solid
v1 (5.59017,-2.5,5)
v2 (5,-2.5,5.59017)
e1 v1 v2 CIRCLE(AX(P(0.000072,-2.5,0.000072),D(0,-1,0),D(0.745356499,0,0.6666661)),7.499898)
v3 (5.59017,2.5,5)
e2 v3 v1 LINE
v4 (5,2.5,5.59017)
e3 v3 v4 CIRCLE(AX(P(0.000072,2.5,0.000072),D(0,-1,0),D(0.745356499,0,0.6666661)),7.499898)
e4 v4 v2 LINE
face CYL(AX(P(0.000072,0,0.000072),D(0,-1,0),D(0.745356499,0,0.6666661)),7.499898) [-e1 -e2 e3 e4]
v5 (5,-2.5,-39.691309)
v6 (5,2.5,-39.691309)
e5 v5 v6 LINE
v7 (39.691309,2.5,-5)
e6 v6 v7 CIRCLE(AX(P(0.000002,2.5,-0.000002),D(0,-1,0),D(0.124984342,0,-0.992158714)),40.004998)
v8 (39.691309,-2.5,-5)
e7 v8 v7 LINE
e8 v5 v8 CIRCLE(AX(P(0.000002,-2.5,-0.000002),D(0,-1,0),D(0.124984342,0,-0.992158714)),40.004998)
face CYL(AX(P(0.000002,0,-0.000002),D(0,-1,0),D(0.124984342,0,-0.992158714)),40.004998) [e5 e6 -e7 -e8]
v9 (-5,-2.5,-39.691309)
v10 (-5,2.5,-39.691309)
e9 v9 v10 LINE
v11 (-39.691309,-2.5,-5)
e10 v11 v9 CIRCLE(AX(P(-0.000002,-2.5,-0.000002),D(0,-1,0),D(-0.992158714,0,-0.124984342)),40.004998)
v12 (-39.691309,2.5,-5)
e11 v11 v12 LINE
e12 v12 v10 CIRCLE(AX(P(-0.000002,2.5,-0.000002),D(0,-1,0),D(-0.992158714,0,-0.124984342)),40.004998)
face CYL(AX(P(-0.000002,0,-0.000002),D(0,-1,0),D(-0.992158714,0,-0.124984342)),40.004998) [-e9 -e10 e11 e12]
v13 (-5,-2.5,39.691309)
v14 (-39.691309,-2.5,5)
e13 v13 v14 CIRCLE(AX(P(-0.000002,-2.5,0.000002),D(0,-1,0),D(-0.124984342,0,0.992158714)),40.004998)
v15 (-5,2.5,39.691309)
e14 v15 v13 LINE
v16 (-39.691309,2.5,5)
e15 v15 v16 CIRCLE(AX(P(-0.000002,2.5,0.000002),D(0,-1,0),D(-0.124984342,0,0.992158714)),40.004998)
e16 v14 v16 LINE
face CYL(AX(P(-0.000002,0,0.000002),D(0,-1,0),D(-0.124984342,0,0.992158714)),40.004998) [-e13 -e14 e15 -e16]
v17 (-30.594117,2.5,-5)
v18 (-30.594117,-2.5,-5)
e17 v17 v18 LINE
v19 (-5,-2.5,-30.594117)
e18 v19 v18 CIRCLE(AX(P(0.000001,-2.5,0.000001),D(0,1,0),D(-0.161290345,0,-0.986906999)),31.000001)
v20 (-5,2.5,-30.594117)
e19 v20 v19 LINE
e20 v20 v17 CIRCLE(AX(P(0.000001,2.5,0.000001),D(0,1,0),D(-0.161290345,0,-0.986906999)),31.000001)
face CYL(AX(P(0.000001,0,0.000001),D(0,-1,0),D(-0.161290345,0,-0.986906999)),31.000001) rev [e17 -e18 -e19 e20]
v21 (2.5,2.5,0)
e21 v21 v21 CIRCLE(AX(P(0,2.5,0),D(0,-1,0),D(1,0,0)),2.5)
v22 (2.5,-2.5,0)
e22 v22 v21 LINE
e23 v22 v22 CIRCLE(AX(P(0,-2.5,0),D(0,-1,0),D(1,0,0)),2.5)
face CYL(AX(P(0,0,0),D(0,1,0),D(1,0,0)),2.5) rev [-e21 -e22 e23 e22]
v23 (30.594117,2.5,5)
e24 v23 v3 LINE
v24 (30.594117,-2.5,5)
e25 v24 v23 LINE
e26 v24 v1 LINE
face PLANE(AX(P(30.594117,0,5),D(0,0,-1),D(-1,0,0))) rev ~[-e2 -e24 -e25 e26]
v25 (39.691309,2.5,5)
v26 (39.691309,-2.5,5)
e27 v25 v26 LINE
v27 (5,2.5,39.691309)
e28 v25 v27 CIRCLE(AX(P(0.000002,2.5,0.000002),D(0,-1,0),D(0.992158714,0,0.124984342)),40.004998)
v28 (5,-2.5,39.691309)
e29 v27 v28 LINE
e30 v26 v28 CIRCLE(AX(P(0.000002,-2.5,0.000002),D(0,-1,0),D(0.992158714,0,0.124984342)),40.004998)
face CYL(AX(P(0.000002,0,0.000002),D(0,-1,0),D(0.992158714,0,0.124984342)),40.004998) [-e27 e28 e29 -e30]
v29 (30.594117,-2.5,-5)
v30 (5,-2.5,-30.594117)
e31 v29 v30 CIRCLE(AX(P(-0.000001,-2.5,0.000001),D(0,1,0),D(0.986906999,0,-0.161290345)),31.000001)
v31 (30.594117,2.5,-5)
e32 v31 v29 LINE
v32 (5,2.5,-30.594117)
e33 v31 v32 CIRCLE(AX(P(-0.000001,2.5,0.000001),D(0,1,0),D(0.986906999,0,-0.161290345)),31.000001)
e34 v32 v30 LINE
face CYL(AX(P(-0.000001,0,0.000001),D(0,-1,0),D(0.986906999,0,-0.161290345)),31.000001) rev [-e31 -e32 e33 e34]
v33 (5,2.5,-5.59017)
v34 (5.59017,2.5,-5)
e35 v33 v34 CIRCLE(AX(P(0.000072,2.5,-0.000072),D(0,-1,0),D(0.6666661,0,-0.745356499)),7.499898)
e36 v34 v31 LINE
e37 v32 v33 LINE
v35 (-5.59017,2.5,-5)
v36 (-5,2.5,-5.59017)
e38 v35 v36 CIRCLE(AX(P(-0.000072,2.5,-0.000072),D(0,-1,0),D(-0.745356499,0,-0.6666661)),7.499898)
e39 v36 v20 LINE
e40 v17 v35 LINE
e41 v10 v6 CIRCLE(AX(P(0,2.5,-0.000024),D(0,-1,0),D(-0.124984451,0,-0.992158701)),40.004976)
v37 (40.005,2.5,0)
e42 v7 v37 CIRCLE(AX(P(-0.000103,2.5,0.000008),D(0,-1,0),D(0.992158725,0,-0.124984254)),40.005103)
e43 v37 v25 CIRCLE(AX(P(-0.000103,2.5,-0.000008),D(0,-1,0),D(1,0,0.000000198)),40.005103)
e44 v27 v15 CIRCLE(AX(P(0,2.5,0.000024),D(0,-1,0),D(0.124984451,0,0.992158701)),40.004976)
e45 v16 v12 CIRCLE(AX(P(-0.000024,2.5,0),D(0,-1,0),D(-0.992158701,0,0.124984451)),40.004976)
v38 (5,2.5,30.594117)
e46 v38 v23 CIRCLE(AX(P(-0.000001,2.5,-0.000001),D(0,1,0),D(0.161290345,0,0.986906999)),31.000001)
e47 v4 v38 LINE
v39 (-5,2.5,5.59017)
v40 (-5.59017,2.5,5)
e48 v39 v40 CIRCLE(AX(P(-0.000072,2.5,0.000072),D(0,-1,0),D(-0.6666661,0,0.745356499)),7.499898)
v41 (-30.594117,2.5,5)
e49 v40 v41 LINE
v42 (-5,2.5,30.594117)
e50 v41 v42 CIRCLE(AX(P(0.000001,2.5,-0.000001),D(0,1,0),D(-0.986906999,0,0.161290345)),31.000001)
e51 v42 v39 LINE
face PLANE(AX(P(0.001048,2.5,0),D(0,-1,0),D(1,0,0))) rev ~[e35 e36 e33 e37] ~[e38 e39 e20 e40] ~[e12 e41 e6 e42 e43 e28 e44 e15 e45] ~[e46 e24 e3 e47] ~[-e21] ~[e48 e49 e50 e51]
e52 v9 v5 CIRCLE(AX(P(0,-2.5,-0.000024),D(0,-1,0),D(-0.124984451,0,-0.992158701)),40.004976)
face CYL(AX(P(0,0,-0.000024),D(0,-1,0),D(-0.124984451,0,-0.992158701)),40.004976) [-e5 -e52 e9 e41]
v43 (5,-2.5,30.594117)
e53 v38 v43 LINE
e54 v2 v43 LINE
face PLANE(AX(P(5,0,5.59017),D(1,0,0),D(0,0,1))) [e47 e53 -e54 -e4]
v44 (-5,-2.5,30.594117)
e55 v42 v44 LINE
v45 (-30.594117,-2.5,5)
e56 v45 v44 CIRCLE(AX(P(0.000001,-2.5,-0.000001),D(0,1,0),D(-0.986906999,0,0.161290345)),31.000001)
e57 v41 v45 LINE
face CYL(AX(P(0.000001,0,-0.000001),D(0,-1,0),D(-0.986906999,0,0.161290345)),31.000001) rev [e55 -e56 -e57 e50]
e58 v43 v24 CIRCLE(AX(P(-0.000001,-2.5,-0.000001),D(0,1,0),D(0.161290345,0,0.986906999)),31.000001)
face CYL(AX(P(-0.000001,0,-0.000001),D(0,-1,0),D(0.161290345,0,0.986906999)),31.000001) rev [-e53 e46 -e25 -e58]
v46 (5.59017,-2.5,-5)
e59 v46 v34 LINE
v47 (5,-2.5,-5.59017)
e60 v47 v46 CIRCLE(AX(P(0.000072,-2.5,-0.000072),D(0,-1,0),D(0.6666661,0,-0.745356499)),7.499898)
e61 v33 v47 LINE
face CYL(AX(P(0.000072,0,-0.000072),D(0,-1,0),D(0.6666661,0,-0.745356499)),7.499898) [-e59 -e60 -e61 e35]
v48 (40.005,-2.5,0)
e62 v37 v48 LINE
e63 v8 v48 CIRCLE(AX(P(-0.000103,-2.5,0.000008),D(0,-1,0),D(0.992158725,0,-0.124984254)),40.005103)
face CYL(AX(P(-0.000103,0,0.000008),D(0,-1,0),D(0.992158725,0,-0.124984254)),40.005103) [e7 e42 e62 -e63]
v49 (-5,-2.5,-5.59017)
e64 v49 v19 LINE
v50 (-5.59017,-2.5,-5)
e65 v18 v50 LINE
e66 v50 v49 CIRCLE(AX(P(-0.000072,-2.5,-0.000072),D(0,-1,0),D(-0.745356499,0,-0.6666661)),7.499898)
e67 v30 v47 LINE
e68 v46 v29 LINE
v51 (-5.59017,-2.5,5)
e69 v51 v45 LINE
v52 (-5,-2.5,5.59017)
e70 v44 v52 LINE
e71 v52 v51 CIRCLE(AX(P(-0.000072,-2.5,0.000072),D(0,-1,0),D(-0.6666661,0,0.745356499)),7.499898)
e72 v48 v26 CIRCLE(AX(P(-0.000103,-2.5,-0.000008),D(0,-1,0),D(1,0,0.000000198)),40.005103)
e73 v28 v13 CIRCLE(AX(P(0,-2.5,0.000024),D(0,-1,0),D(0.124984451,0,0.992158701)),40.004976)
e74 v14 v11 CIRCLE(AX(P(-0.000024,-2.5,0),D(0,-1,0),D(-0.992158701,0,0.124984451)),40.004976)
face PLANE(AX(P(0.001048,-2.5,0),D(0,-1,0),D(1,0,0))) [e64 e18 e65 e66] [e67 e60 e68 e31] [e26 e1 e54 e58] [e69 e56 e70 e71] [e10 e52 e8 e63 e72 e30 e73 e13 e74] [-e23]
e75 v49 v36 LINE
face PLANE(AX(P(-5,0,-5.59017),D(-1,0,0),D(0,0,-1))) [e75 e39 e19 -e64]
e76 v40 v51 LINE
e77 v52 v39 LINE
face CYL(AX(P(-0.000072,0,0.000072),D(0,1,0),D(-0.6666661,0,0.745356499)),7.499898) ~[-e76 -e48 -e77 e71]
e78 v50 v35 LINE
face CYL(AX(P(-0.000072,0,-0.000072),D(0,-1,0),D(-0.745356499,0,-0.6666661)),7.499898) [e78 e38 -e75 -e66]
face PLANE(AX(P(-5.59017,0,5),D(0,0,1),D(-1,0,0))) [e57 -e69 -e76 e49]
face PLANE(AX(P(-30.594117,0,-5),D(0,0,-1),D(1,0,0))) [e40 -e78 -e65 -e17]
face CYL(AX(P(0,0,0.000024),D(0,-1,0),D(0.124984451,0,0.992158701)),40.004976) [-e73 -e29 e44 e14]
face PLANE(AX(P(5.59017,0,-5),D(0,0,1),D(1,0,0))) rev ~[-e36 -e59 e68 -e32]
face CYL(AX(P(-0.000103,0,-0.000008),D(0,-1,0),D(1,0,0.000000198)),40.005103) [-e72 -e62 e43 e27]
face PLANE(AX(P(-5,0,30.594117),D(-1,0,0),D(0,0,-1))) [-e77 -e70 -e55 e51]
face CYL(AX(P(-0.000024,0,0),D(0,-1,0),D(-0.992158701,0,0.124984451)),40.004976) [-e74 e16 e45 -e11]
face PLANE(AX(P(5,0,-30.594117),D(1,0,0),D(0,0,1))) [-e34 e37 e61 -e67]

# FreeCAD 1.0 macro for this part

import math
import FreeCAD as App
import Part
import Sketcher

V = App.Vector
Q = App.Units.Quantity

doc = App.newDocument("Part")
body = doc.addObject("PartDesign::Body", "Body")

sketch1 = body.newObject("Sketcher::SketchObject", "Sketch")
sketch1.AttachmentSupport = (doc.getObject("XZ_Plane"), [""])
sketch1.MapMode = "FlatFace"
sketch1.addGeometry([
    Part.ArcOfCircle(Part.Circle(V(-0.000103, 0.000008, 0), V(0, 0, 1), 40.005103), math.radians(-7.179846), math.radians(-0.000011)),
    Part.ArcOfCircle(Part.Circle(V(-0.000103, -0.000008, 0), V(0, 0, 1), 40.005103), math.radians(0.000011), math.radians(7.179846)),
    Part.ArcOfCircle(Part.Circle(V(0.000002, 0.000002, 0), V(0, 0, 1), 40.004998), math.radians(7.179852), math.radians(82.820148)),
    Part.ArcOfCircle(Part.Circle(V(0, 0.000024, 0), V(0, 0, 1), 40.004976), math.radians(82.820142), math.radians(97.179858)),
    Part.ArcOfCircle(Part.Circle(V(-0.000002, 0.000002, 0), V(0, 0, 1), 40.004998), math.radians(97.179852), math.radians(172.820148)),
    Part.ArcOfCircle(Part.Circle(V(-0.000024, 0, 0), V(0, 0, 1), 40.004976), math.radians(172.820142), math.radians(187.179858)),
    Part.ArcOfCircle(Part.Circle(V(-0.000002, -0.000002, 0), V(0, 0, 1), 40.004998), math.radians(-172.820148), math.radians(-97.179852)),
    Part.ArcOfCircle(Part.Circle(V(0, -0.000024, 0), V(0, 0, 1), 40.004976), math.radians(-97.179858), math.radians(-82.820142)),
    Part.ArcOfCircle(Part.Circle(V(0.000002, -0.000002, 0), V(0, 0, 1), 40.004998), math.radians(-82.820148), math.radians(-7.179852)),
    Part.LineSegment(V(-5, -5.59017, 0), V(-5, -30.594117, 0)),
    Part.ArcOfCircle(Part.Circle(V(0.000001, 0.000001, 0), V(0, 0, 1), 31.000001), math.radians(-170.7182), math.radians(-99.2818)),
    Part.LineSegment(V(-30.594117, -5, 0), V(-5.59017, -5, 0)),
    Part.ArcOfCircle(Part.Circle(V(-0.000072, -0.000072, 0), V(0, 0, 1), 7.499898), math.radians(-138.189729), math.radians(-131.810271)),
    Part.Circle(V(0, 0, 0), V(0, 0, 1), 2.5),
    Part.LineSegment(V(5, -30.594117, 0), V(5, -5.59017, 0)),
    Part.ArcOfCircle(Part.Circle(V(0.000072, -0.000072, 0), V(0, 0, 1), 7.499898), math.radians(-48.189729), math.radians(-41.810271)),
    Part.LineSegment(V(5.59017, -5, 0), V(30.594117, -5, 0)),
    Part.ArcOfCircle(Part.Circle(V(-0.000001, 0.000001, 0), V(0, 0, 1), 31.000001), math.radians(-80.7182), math.radians(-9.2818)),
    Part.ArcOfCircle(Part.Circle(V(0.000001, -0.000001, 0), V(0, 0, 1), 31.000001), math.radians(99.2818), math.radians(170.7182)),
    Part.LineSegment(V(-5, 30.594117, 0), V(-5, 5.59017, 0)),
    Part.ArcOfCircle(Part.Circle(V(-0.000072, 0.000072, 0), V(0, 0, 1), 7.499898), math.radians(131.810271), math.radians(138.189729)),
    Part.LineSegment(V(-5.59017, 5, 0), V(-30.594117, 5, 0)),
    Part.ArcOfCircle(Part.Circle(V(-0.000001, -0.000001, 0), V(0, 0, 1), 31.000001), math.radians(9.2818), math.radians(80.7182)),
    Part.LineSegment(V(30.594117, 5, 0), V(5.59017, 5, 0)),
    Part.ArcOfCircle(Part.Circle(V(0.000072, 0.000072, 0), V(0, 0, 1), 7.499898), math.radians(41.810271), math.radians(48.189729)),
    Part.LineSegment(V(5, 5.59017, 0), V(5, 30.594117, 0)),
], False)
sketch1.addConstraint([
    Sketcher.Constraint("Coincident", 0, 2, 1, 1),
    Sketcher.Constraint("Coincident", 1, 2, 2, 1),
    Sketcher.Constraint("Coincident", 2, 2, 3, 1),
    Sketcher.Constraint("Coincident", 3, 2, 4, 1),
    Sketcher.Constraint("Coincident", 4, 2, 5, 1),
    Sketcher.Constraint("Coincident", 5, 2, 6, 1),
    Sketcher.Constraint("Coincident", 6, 2, 7, 1),
    Sketcher.Constraint("Coincident", 7, 2, 8, 1),
    Sketcher.Constraint("Coincident", 8, 2, 0, 1),
    Sketcher.Constraint("Coincident", 9, 2, 10, 2),
    Sketcher.Constraint("Coincident", 10, 1, 11, 1),
    Sketcher.Constraint("Coincident", 11, 2, 12, 1),
    Sketcher.Constraint("Coincident", 12, 2, 9, 1),
    Sketcher.Constraint("Coincident", 14, 2, 15, 1),
    Sketcher.Constraint("Coincident", 15, 2, 16, 1),
    Sketcher.Constraint("Coincident", 16, 2, 17, 2),
    Sketcher.Constraint("Coincident", 17, 1, 14, 1),
    Sketcher.Constraint("Coincident", 18, 1, 19, 1),
    Sketcher.Constraint("Coincident", 19, 2, 20, 1),
    Sketcher.Constraint("Coincident", 20, 2, 21, 1),
    Sketcher.Constraint("Coincident", 21, 2, 18, 2),
    Sketcher.Constraint("Coincident", 22, 1, 23, 1),
    Sketcher.Constraint("Coincident", 23, 2, 24, 1),
    Sketcher.Constraint("Coincident", 24, 2, 25, 1),
    Sketcher.Constraint("Coincident", 25, 2, 22, 2),
    Sketcher.Constraint("Vertical", 9),
    Sketcher.Constraint("Horizontal", 11),
    Sketcher.Constraint("Vertical", 14),
    Sketcher.Constraint("Horizontal", 16),
    Sketcher.Constraint("Vertical", 19),
    Sketcher.Constraint("Horizontal", 21),
    Sketcher.Constraint("Horizontal", 23),
    Sketcher.Constraint("Vertical", 25),
    Sketcher.Constraint("Coincident", 2, 3, -1, 1),
    Sketcher.Constraint("Coincident", 4, 3, -1, 1),
    Sketcher.Constraint("Coincident", 6, 3, -1, 1),
    Sketcher.Constraint("Coincident", 8, 3, -1, 1),
    Sketcher.Constraint("Coincident", 10, 3, -1, 1),
    Sketcher.Constraint("Coincident", 13, 3, -1, 1),
    Sketcher.Constraint("Coincident", 17, 3, -1, 1),
    Sketcher.Constraint("Coincident", 18, 3, -1, 1),
    Sketcher.Constraint("Coincident", 22, 3, -1, 1),
    Sketcher.Constraint("PointOnObject", 3, 3, -2),
    Sketcher.Constraint("PointOnObject", 5, 3, -1),
    Sketcher.Constraint("PointOnObject", 7, 3, -2),
    Sketcher.Constraint("PointOnObject", 0, 2, -1),
    Sketcher.Constraint("Diameter", 13, Q("5 mm")),
    Sketcher.Constraint("Radius", 10, Q("31.000001 mm")),
    Sketcher.Constraint("Radius", 17, Q("31.000001 mm")),
    Sketcher.Constraint("Radius", 18, Q("31.000001 mm")),
    Sketcher.Constraint("Radius", 22, Q("31.000001 mm")),
    Sketcher.Constraint("DistanceY", -1, 1, 1, 2, Q("5 mm")),
    Sketcher.Constraint("DistanceX", -1, 1, 2, 2, Q("5 mm")),
    Sketcher.Constraint("DistanceX", 3, 2, -1, 1, Q("5 mm")),
    Sketcher.Constraint("DistanceY", -1, 1, 4, 2, Q("5 mm")),
    Sketcher.Constraint("DistanceY", 5, 2, -1, 1, Q("5 mm")),
    Sketcher.Constraint("DistanceX", 6, 2, -1, 1, Q("5 mm")),
    Sketcher.Constraint("DistanceX", -1, 1, 7, 2, Q("5 mm")),
    Sketcher.Constraint("DistanceY", 8, 2, -1, 1, Q("5 mm")),
    Sketcher.Constraint("DistanceX", 9, 2, -1, 1, Q("5 mm")),
    Sketcher.Constraint("DistanceY", 10, 1, -1, 1, Q("5 mm")),
    Sketcher.Constraint("DistanceX", -1, 1, 14, 2, Q("5 mm")),
    Sketcher.Constraint("DistanceY", 15, 2, -1, 1, Q("5 mm")),
    Sketcher.Constraint("DistanceX", 18, 1, -1, 1, Q("5 mm")),
    Sketcher.Constraint("DistanceY", -1, 1, 20, 2, Q("5 mm")),
    Sketcher.Constraint("DistanceY", -1, 1, 22, 1, Q("5 mm")),
    Sketcher.Constraint("DistanceX", -1, 1, 24, 2, Q("5 mm")),
    Sketcher.Constraint("Radius", 12, Q("7.499898 mm")),
    Sketcher.Constraint("Radius", 15, Q("7.499898 mm")),
    Sketcher.Constraint("Radius", 20, Q("7.499898 mm")),
    Sketcher.Constraint("Radius", 24, Q("7.499898 mm")),
    Sketcher.Constraint("DistanceX", -1, 1, 0, 2, Q("40.005 mm")),
    Sketcher.Constraint("Radius", 0, Q("40.005103 mm")),
    Sketcher.Constraint("Radius", 1, Q("40.005103 mm")),
    Sketcher.Constraint("Radius", 2, Q("40.004998 mm")),
    Sketcher.Constraint("Radius", 3, Q("40.004976 mm")),
    Sketcher.Constraint("Radius", 5, Q("40.004976 mm")),
    Sketcher.Constraint("Radius", 7, Q("40.004976 mm")),
    Sketcher.Constraint("DistanceX", 11, 2, 12, 3, Q("5.590098 mm")),
    Sketcher.Constraint("DistanceY", 12, 2, 12, 3, Q("5.590098 mm")),
    Sketcher.Constraint("DistanceY", 14, 2, 15, 3, Q("5.590098 mm")),
    Sketcher.Constraint("DistanceY", 14, 2, 12, 3, Q("5.590098 mm")),
    Sketcher.Constraint("DistanceX", 24, 3, 15, 2, Q("5.590098 mm")),
    Sketcher.Constraint("DistanceY", 20, 3, 19, 2, Q("5.590098 mm")),
    Sketcher.Constraint("DistanceX", 20, 2, 20, 3, Q("5.590098 mm")),
    Sketcher.Constraint("DistanceX", 24, 3, 23, 2, Q("5.590098 mm")),
])
pad1 = body.newObject("PartDesign::Pad", "Pad")
pad1.Profile = sketch1
pad1.Length = 5
pad1.Midplane = True

doc.recompute()
